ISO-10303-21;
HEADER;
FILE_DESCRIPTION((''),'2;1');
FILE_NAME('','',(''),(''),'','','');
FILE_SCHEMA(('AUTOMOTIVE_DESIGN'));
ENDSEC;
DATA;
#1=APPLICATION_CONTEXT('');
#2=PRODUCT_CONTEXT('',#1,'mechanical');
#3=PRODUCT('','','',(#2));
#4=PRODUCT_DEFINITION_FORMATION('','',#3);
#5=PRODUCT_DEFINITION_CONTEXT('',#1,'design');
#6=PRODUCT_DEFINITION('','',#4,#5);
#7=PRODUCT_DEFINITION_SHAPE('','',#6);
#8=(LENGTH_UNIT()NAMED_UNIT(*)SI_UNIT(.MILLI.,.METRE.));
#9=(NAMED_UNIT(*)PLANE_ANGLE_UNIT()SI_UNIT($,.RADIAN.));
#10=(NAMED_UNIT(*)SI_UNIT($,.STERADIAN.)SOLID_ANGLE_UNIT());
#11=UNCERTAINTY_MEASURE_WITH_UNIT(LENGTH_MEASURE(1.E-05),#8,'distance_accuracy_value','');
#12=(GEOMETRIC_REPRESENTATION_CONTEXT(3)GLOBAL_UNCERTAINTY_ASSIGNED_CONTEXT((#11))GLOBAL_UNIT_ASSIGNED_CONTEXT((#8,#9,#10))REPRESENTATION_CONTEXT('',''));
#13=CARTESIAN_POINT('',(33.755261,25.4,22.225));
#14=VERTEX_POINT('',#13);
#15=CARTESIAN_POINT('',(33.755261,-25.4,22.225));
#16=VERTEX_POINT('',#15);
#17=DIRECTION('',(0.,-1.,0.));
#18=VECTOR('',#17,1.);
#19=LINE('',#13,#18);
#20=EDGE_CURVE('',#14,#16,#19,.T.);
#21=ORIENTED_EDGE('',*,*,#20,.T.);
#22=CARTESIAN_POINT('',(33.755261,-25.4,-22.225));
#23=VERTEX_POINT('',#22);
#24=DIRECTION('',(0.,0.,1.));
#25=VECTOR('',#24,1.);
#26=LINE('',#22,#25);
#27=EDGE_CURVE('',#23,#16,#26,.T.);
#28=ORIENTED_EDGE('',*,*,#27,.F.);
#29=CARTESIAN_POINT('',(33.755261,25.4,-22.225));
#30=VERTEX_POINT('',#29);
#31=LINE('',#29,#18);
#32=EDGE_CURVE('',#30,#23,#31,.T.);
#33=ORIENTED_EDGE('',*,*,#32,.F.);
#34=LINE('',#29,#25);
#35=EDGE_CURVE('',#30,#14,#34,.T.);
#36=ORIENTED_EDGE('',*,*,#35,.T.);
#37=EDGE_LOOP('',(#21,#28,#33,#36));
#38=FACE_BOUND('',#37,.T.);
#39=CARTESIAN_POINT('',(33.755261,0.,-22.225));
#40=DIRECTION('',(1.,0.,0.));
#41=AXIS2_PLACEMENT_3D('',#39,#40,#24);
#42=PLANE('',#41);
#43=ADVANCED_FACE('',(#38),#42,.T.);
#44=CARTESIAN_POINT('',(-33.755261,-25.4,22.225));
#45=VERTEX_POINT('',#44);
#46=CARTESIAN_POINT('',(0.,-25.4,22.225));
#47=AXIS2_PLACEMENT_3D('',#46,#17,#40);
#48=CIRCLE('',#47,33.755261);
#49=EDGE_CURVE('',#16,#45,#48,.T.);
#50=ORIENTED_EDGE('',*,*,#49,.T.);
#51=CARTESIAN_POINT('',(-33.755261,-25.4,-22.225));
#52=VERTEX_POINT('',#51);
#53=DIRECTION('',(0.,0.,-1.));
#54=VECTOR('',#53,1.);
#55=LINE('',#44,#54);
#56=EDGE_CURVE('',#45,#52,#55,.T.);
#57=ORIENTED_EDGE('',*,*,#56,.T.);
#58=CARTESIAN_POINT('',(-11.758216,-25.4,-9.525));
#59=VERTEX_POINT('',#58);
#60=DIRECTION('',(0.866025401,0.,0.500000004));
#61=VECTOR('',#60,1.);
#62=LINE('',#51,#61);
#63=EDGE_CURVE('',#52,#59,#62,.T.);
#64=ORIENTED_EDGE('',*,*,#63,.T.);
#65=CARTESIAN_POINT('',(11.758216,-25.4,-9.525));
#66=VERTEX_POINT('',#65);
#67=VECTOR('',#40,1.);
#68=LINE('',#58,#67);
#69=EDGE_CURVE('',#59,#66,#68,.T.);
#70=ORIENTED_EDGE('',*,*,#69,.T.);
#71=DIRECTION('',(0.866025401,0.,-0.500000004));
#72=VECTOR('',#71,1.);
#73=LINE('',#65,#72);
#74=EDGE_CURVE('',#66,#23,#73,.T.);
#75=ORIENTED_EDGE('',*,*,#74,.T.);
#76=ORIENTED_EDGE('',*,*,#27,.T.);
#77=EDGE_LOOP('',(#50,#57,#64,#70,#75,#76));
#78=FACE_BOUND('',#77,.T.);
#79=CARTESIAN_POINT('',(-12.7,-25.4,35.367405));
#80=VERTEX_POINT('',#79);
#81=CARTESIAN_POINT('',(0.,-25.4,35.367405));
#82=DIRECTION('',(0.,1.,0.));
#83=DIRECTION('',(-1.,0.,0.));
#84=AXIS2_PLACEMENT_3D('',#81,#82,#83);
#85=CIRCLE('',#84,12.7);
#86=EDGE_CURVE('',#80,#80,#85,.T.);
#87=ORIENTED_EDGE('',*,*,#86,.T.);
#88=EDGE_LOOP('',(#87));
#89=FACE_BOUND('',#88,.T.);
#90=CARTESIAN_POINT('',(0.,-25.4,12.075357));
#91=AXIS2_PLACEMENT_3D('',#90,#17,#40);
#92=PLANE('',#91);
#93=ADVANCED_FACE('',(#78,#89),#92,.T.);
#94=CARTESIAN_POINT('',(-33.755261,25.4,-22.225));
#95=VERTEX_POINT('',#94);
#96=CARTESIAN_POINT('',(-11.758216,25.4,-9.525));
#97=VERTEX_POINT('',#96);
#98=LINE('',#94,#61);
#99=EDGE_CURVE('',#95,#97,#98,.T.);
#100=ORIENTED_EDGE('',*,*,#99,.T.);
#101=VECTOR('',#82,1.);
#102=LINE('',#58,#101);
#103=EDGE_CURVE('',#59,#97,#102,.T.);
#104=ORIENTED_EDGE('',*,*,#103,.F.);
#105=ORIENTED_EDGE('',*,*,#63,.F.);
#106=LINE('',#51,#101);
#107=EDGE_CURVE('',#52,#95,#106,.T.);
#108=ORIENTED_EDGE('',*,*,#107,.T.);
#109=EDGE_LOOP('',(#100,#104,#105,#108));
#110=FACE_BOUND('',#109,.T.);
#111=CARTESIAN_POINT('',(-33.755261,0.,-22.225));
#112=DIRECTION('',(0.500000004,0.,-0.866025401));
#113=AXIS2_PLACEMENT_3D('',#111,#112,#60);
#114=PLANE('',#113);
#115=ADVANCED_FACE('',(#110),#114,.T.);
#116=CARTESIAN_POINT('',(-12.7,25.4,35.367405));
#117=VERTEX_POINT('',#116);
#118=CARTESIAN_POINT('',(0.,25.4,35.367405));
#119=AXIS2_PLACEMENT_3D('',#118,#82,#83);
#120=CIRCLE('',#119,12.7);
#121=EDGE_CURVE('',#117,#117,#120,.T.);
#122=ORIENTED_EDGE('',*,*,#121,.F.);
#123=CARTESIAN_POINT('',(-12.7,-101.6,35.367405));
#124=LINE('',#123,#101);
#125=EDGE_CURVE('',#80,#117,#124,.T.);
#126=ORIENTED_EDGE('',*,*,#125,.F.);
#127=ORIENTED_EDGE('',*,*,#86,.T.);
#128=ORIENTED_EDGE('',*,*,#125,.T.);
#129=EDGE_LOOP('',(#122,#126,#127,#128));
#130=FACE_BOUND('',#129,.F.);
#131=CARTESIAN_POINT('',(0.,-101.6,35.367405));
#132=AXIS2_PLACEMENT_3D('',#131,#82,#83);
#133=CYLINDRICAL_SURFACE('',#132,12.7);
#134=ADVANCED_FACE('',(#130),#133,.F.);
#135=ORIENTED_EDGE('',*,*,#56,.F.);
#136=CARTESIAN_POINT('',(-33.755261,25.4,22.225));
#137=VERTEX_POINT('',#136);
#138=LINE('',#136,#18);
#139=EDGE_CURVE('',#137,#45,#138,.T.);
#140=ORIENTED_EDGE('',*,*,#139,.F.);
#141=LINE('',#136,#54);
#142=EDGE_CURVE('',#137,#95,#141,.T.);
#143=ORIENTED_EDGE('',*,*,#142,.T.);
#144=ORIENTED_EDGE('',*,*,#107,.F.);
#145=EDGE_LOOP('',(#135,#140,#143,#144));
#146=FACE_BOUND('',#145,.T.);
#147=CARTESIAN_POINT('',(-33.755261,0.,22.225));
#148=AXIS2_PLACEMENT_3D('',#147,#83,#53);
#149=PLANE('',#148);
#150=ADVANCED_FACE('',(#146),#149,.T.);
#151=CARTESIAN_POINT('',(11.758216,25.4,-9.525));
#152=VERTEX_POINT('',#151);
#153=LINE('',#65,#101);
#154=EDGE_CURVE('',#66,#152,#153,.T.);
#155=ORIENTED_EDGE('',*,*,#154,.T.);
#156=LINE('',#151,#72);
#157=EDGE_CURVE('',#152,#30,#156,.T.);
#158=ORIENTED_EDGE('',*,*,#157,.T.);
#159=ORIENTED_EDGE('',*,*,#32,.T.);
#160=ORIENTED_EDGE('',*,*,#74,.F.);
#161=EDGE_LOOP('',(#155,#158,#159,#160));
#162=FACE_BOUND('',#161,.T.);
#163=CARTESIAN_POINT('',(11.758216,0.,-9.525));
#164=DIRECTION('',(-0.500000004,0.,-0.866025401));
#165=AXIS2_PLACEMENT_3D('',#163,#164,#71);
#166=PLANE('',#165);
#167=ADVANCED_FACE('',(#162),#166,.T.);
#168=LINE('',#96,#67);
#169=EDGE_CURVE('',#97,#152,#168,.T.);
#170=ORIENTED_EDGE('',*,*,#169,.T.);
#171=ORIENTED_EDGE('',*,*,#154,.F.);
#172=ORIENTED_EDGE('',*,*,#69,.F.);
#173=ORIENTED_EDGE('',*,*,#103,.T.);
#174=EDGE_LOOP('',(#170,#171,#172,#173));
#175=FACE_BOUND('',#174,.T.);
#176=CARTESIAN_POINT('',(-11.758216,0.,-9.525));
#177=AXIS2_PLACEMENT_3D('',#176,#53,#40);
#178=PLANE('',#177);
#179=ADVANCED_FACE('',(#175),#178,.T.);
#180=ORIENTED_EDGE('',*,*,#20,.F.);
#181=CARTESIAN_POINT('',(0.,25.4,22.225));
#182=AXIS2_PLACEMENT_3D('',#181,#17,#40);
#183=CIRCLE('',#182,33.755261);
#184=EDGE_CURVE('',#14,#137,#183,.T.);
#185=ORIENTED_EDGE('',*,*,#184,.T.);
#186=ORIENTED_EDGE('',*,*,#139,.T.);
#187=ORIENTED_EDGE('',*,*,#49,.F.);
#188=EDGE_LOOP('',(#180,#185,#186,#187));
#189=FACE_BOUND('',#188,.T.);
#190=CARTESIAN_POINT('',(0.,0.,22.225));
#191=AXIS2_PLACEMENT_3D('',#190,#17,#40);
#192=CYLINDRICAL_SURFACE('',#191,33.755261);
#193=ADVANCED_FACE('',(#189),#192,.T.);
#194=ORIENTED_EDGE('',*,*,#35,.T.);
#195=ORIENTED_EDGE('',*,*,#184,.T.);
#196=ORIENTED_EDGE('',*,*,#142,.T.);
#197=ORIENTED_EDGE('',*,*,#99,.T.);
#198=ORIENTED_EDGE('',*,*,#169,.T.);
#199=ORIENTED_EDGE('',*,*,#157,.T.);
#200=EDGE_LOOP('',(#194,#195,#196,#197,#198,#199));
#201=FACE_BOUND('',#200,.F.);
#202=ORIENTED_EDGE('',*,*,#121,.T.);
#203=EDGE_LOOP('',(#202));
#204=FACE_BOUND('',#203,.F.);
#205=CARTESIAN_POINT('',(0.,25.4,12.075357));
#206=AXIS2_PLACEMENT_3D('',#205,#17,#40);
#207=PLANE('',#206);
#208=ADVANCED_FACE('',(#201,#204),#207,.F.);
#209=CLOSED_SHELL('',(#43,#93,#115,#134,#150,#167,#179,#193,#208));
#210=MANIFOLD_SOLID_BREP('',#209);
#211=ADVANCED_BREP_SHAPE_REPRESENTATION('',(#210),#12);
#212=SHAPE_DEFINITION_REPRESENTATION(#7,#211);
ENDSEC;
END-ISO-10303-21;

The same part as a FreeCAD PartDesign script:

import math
import FreeCAD as App
import Part
import Sketcher

V = App.Vector
Q = App.Units.Quantity

doc = App.newDocument("Part")
body = doc.addObject("PartDesign::Body", "Body")

# Sketch on XZ plane
sketch1 = doc.addObject("Sketcher::SketchObject", "Sketch")
body.addObject(sketch1)
sketch1.AttachmentSupport = (doc.XZ_Plane, [""])
sketch1.MapMode = "FlatFace"
sketch1.addGeometry([
    Part.LineSegment(V(12, -10, 0), V(34, -22, 0)),  # 0
    Part.LineSegment(V(34, -22, 0), V(34, 22, 0)),  # 1
    Part.ArcOfCircle(Part.Circle(V(0, 22, 0), V(0, 0, 1), 34), math.radians(0), math.radians(180)),  # 2
    Part.LineSegment(V(-34, 22, 0), V(-34, -22, 0)),  # 3
    Part.LineSegment(V(-34, -22, 0), V(-12, -10, 0)),  # 4
    Part.LineSegment(V(-12, -10, 0), V(12, -10, 0)),  # 5
], False)
sketch1.addConstraint([
    Sketcher.Constraint("Coincident", 0, 2, 1, 1),
    Sketcher.Constraint("Tangent", 1, 2, 2, 1),
    Sketcher.Constraint("Tangent", 2, 2, 3, 1),
    Sketcher.Constraint("Coincident", 3, 2, 4, 1),
    Sketcher.Constraint("Coincident", 4, 2, 5, 1),
    Sketcher.Constraint("Coincident", 5, 2, 0, 1),
    Sketcher.Constraint("Vertical", 1),
    Sketcher.Constraint("Vertical", 3),
    Sketcher.Constraint("Horizontal", 5),
    Sketcher.Constraint("Symmetric", 0, 2, 2, 2, -1, 1),
    Sketcher.Constraint("Horizontal", 0, 2, 3, 2),
    Sketcher.Constraint("Equal", 0, 4),
    Sketcher.Constraint("Distance", 0, Q("1 in")),
    Sketcher.Constraint("Angle", 0, Q("-30 deg")),
    Sketcher.Constraint("DistanceY", 1, 1, 1, 2, Q("1.75 in")),
    Sketcher.Constraint("Radius", 2, 33.755261),
])
pad1 = doc.addObject("PartDesign::Pad", "Pad")
body.addObject(pad1)
pad1.Profile = sketch1
pad1.Length = Q("2 in")
pad1.Midplane = True

# Sketch on XZ plane
sketch2 = doc.addObject("Sketcher::SketchObject", "Sketch001")
body.addObject(sketch2)
sketch2.AttachmentSupport = (doc.XZ_Plane, [""])
sketch2.MapMode = "FlatFace"
sketch2.AttachmentOffset = App.Placement(V(0, 0, 1 * 25.4), App.Rotation())
sketch2.addGeometry(Part.Circle(V(0, 35, 0), V(0, 0, 1), 13), False)
sketch2.addConstraint([
    Sketcher.Constraint("PointOnObject", 0, 3, -2),
    Sketcher.Constraint("Diameter", 0, Q("1 in")),
    Sketcher.Constraint("DistanceY", -1, 1, 0, 3, 35.367405),
])
doc.recompute()
hole = doc.addObject("PartDesign::Hole", "Hole")
body.addObject(hole)
hole.Profile = sketch2
hole.ThreadType = "None"
hole.Diameter = Q("1 in")
hole.DepthType = "Dimension"
hole.Depth = Q("3 in")
hole.DrillPoint = "Flat"

doc.recompute()
